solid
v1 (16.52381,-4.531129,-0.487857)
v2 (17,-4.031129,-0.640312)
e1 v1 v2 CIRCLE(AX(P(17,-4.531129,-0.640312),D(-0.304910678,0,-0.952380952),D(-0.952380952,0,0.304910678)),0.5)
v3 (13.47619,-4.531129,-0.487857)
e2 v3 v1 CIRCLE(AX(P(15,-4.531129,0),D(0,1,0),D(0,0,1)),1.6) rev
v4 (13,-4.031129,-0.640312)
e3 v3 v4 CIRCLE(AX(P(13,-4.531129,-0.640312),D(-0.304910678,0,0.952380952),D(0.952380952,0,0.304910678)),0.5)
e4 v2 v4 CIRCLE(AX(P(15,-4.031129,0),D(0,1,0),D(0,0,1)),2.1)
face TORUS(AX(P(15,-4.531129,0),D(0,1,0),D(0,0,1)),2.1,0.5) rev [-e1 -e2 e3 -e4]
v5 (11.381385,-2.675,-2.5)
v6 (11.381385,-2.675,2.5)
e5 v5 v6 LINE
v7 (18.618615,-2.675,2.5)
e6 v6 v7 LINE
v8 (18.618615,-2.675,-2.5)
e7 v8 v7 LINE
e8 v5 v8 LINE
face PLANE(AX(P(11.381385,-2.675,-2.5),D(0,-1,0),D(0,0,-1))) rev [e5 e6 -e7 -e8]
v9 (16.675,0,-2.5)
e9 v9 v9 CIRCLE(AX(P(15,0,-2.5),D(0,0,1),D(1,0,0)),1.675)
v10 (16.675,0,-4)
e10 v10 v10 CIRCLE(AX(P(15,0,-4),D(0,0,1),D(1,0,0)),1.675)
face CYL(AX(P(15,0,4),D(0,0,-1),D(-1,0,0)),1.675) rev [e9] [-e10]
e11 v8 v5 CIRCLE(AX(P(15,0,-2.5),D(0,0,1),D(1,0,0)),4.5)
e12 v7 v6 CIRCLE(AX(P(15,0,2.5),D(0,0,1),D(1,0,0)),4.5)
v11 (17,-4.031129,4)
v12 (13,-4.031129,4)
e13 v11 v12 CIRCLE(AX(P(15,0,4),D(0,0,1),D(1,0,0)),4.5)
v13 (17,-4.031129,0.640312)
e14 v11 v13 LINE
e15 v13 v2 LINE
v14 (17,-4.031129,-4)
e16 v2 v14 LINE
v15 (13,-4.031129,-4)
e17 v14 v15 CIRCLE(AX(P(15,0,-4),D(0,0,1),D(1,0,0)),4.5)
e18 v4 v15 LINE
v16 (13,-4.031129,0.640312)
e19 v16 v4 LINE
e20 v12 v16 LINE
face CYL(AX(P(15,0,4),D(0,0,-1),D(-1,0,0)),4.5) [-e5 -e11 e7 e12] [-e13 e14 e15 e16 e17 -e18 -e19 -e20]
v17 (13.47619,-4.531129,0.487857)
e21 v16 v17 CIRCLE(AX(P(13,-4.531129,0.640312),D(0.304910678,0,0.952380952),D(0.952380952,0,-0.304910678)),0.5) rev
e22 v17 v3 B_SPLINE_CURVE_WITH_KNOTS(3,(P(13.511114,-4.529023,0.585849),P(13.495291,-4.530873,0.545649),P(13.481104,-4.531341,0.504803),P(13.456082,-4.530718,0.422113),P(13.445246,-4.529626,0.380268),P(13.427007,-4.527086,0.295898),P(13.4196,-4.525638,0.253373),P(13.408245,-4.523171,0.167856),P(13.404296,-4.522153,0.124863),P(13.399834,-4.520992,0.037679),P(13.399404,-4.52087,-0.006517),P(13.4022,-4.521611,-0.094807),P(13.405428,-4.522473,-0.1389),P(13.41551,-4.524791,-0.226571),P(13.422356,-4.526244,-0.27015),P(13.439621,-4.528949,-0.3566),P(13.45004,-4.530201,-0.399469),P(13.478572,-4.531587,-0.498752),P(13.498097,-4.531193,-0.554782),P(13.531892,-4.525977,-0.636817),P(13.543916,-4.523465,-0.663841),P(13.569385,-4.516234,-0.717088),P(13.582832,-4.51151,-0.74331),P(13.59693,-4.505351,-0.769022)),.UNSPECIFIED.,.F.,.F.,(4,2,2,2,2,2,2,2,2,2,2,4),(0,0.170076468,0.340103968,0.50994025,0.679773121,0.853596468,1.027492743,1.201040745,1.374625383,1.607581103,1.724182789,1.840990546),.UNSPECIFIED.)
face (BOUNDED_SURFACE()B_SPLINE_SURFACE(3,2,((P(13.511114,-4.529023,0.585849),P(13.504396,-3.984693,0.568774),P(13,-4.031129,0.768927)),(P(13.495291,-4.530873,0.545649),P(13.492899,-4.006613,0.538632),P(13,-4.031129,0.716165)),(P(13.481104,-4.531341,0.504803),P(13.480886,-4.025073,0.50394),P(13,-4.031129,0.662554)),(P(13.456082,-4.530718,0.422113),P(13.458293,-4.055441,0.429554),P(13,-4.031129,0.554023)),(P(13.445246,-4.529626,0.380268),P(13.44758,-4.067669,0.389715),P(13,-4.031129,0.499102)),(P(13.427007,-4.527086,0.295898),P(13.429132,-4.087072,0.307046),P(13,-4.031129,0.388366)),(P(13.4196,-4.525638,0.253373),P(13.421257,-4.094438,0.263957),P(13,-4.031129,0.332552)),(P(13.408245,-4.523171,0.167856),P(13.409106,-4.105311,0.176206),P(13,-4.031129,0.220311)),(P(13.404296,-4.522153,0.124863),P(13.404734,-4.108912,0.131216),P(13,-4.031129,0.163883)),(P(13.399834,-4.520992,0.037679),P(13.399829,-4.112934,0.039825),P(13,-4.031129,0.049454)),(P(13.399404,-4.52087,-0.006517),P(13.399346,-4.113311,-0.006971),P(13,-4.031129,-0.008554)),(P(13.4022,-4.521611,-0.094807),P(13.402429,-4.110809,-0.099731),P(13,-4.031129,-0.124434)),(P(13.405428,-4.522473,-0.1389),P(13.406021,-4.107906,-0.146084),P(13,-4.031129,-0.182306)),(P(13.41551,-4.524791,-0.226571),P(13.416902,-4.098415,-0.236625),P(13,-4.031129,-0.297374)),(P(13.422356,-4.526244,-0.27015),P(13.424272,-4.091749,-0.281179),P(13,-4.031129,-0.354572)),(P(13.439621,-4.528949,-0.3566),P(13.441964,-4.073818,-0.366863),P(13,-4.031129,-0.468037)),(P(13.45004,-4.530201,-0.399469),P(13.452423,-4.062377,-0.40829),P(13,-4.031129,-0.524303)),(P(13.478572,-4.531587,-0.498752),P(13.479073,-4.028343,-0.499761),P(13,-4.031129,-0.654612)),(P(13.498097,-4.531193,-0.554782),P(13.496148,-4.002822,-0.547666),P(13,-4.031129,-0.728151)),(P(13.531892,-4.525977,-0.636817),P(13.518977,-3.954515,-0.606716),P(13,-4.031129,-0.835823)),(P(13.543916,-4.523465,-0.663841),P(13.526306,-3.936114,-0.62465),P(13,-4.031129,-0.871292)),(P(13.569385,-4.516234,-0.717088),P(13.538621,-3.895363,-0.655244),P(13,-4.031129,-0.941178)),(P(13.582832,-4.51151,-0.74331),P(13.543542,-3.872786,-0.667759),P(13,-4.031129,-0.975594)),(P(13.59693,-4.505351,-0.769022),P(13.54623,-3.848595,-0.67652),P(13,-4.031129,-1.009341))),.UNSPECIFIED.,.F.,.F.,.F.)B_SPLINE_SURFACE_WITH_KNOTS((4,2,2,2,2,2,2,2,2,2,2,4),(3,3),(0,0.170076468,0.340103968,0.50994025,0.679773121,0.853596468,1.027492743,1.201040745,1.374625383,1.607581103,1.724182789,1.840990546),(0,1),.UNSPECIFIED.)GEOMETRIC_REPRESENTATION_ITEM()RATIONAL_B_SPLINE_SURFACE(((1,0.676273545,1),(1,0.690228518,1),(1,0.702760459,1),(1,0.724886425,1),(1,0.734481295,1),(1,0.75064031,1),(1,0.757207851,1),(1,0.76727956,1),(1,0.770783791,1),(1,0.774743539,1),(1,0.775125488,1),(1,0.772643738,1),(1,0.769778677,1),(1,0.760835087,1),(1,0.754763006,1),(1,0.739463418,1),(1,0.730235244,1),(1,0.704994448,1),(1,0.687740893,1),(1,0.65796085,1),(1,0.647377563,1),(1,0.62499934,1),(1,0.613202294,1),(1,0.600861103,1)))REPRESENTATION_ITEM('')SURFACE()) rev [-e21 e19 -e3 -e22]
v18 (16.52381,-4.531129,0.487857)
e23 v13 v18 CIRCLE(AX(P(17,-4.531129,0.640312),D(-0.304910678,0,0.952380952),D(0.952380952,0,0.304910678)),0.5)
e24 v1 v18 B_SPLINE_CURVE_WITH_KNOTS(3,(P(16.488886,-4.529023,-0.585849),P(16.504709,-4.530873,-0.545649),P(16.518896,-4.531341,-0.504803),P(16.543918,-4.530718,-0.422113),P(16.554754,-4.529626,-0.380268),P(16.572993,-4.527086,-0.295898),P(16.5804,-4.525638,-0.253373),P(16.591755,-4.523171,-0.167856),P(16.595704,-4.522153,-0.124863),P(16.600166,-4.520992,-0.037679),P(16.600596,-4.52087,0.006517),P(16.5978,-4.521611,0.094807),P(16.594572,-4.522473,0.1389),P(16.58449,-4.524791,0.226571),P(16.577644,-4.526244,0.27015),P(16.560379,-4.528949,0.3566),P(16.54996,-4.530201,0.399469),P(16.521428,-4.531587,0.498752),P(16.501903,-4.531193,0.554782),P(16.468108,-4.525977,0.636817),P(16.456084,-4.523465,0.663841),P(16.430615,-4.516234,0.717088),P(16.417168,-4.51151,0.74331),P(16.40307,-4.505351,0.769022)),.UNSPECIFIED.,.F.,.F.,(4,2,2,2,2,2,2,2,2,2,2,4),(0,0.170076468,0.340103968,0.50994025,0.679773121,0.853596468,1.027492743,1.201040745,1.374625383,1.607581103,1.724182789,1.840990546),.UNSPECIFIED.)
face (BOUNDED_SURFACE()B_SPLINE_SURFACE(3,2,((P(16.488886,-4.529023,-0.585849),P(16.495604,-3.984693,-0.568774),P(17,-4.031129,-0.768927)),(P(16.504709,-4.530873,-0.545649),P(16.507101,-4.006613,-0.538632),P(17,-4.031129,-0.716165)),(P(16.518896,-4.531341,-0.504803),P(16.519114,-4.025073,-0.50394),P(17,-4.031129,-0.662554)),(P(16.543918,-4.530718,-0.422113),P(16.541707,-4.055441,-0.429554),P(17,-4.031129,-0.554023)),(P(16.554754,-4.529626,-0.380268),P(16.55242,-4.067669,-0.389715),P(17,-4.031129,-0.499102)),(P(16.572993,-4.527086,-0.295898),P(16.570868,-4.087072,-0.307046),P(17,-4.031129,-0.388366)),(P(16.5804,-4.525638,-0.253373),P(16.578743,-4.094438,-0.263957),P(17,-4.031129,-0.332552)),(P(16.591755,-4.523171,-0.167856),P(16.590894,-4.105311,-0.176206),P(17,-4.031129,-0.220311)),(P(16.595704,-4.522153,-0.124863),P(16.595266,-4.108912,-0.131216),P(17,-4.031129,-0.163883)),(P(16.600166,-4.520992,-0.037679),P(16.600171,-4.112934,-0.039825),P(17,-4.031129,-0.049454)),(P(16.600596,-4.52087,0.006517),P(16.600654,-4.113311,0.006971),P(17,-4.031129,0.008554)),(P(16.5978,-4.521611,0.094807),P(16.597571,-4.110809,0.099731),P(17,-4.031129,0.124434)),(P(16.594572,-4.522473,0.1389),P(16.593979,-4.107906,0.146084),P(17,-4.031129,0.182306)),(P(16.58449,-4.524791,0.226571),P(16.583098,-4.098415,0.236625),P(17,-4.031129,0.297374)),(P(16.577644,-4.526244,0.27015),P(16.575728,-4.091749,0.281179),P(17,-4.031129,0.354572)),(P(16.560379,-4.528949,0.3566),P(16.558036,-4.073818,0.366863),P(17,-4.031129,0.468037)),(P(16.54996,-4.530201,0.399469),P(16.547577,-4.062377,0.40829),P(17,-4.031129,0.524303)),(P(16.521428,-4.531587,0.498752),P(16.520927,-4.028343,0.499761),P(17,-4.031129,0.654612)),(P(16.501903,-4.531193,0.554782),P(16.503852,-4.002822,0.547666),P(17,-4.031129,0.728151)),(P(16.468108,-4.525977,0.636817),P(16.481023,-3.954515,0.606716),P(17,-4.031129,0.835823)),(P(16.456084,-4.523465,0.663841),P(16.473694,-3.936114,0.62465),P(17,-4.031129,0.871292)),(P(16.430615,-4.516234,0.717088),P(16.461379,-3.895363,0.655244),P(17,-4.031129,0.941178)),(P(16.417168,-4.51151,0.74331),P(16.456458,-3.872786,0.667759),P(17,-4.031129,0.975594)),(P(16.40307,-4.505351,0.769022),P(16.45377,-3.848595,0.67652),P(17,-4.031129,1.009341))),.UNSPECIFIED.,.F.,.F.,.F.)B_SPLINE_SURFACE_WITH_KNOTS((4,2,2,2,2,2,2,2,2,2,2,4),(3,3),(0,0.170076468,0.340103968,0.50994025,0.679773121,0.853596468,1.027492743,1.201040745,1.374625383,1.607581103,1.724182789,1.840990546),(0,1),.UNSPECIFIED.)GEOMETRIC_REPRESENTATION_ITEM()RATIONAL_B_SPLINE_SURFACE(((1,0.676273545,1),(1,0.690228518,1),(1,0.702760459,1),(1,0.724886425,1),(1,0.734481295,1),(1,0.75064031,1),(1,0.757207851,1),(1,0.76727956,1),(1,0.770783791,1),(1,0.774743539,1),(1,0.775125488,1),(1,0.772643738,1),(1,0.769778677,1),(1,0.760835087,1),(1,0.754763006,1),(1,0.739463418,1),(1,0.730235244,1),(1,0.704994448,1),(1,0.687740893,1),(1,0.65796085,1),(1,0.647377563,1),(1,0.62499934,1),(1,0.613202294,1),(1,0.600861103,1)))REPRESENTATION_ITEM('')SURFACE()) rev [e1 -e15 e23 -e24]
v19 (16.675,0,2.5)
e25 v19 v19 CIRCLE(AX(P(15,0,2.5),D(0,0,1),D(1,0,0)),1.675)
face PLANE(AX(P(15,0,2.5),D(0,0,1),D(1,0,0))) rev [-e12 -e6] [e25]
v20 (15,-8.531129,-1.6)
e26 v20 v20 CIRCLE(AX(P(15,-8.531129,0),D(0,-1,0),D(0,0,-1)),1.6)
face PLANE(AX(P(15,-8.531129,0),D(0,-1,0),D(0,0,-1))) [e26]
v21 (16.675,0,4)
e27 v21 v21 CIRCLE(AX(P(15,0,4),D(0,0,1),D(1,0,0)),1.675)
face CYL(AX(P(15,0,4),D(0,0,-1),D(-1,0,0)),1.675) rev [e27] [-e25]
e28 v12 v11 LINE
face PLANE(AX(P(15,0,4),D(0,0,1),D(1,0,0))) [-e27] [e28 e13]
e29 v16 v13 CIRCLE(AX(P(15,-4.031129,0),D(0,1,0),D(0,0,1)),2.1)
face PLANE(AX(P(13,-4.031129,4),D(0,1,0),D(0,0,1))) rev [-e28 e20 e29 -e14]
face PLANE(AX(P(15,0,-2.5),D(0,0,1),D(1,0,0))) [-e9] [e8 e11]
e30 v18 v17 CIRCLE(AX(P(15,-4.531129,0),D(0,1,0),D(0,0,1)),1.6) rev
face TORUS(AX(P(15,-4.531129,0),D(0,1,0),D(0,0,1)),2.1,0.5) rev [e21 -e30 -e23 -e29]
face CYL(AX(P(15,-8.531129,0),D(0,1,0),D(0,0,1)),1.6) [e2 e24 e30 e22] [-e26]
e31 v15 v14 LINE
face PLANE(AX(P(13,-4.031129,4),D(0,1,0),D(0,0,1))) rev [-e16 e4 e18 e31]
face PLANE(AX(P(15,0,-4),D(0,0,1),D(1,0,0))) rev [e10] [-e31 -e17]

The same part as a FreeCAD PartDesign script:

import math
import FreeCAD as App
import Part
import Sketcher

V = App.Vector
Q = App.Units.Quantity


def edges_at(feature, points):
    """Names of the edges that pass closest to the given points."""
    edges = feature.Shape.Edges
    near = lambda p: min(range(len(edges)), key=lambda i: edges[i].distToShape(Part.Vertex(*p))[0])
    return sorted({f"Edge{near(p) + 1}" for p in points})

doc = App.newDocument("Part")
params = doc.addObject("Spreadsheet::Sheet", "Params")
for row, (alias, value) in enumerate([
    ("sketch1_radius", "4.5 mm"),
    ("sketch1_diameter", "3.35 mm"),
    ("sketch1_width", "4 mm"),
    ("pad1_length", "8 mm"),
    ("sketch2_radius", "4.5 mm"),
    ("pocket1_length", "5 mm"),
    ("sketch3_diameter", "3.2 mm"),
    ("pad2_length", "4.5 mm"),
    ("fillet_radius", "0.5 mm"),
], start=1):
    params.set(f"A{row}", alias)
    params.set(f"B{row}", "=" + value)
    params.setAlias(f"B{row}", alias)

body = doc.addObject("PartDesign::Body", "Body")

sketch1 = body.newObject("Sketcher::SketchObject", "Sketch")
sketch1.AttachmentSupport = (doc.getObject("XY_Plane"), [""])
sketch1.MapMode = "FlatFace"
sketch1.addGeometry(Part.LineSegment(V(13, -4, 0), V(17, -4, 0)), False)
sketch1.addGeometry(Part.ArcOfCircle(Part.Circle(V(15, 0, 0), V(0, 0, 1), 4.5), math.radians(-64), math.radians(244)), False)
sketch1.addGeometry(Part.Circle(V(15, 0, 0), V(0, 0, 1), 1.7), False)
sketch1.addConstraint(Sketcher.Constraint("Coincident", 0, 1, 1, 2))
sketch1.addConstraint(Sketcher.Constraint("Coincident", 1, 1, 0, 2))
sketch1.addConstraint(Sketcher.Constraint("Horizontal", 0))
sketch1.addConstraint(Sketcher.Constraint("Coincident", 2, 3, 1, 3))
sketch1.addConstraint(Sketcher.Constraint("PointOnObject", 1, 3, -1))
sketch1.addConstraint(Sketcher.Constraint("Radius", 1, Q("4.5 mm")))
sketch1.addConstraint(Sketcher.Constraint("Diameter", 2, Q("3.35 mm")))
sketch1.addConstraint(Sketcher.Constraint("DistanceX", 0, 1, 0, 2, Q("4 mm")))
sketch1.addConstraint(Sketcher.Constraint("DistanceX", -1, 1, 1, 3, Q("15 mm")))
sketch1.setExpression("Constraints[5]", "Params.sketch1_radius")
sketch1.setExpression("Constraints[6]", "Params.sketch1_diameter")
sketch1.setExpression("Constraints[7]", "Params.sketch1_width")
pad1 = body.newObject("PartDesign::Pad", "Pad")
pad1.Profile = sketch1
pad1.setExpression("Length", "Params.pad1_length")
pad1.Midplane = True

sketch2 = body.newObject("Sketcher::SketchObject", "Sketch001")
sketch2.AttachmentSupport = (doc.getObject("XY_Plane"), [""])
sketch2.MapMode = "FlatFace"
sketch2.addGeometry(Part.LineSegment(V(11.4, -2.7, 0), V(18.6, -2.7, 0)), False)
sketch2.addGeometry(Part.ArcOfCircle(Part.Circle(V(15, 0, 0), V(0, 0, 1), 4.5), math.radians(-36), math.radians(216)), False)
sketch2.addConstraint(Sketcher.Constraint("Coincident", 0, 1, 1, 2))
sketch2.addConstraint(Sketcher.Constraint("Coincident", 1, 1, 0, 2))
sketch2.addConstraint(Sketcher.Constraint("Horizontal", 0))
sketch2.addConstraint(Sketcher.Constraint("PointOnObject", 1, 3, -1))
sketch2.addConstraint(Sketcher.Constraint("Radius", 1, Q("4.5 mm")))
sketch2.addConstraint(Sketcher.Constraint("DistanceX", -1, 1, 1, 3, Q("15 mm")))
sketch2.addConstraint(Sketcher.Constraint("DistanceY", 0, 1, -1, 1, Q("2.675 mm")))
sketch2.setExpression("Constraints[4]", "Params.sketch2_radius")
pocket1 = body.newObject("PartDesign::Pocket", "Pocket")
pocket1.Profile = sketch2
pocket1.setExpression("Length", "Params.pocket1_length")
pocket1.Midplane = True

sketch3 = body.newObject("Sketcher::SketchObject", "Sketch002")
sketch3.AttachmentSupport = (doc.getObject("XZ_Plane"), [""])
sketch3.MapMode = "FlatFace"
sketch3.AttachmentOffset = App.Placement(V(0, 0, 4.031129), App.Rotation())
sketch3.addGeometry(Part.Circle(V(15, 0, 0), V(0, 0, 1), 1.6), False)
sketch3.addConstraint(Sketcher.Constraint("PointOnObject", 0, 3, -1))
sketch3.addConstraint(Sketcher.Constraint("Diameter", 0, Q("3.2 mm")))
sketch3.addConstraint(Sketcher.Constraint("DistanceX", -1, 1, 0, 3, Q("15 mm")))
sketch3.setExpression("Constraints[1]", "Params.sketch3_diameter")
pad2 = body.newObject("PartDesign::Pad", "Pad001")
pad2.Profile = sketch3
pad2.setExpression("Length", "Params.pad2_length")
doc.recompute()

fillet = body.newObject("PartDesign::Fillet", "Fillet")
fillet.Base = (pad2, edges_at(pad2, [(13.4, -4.031, 0)]))
fillet.setExpression("Radius", "Params.fillet_radius")

doc.recompute()
